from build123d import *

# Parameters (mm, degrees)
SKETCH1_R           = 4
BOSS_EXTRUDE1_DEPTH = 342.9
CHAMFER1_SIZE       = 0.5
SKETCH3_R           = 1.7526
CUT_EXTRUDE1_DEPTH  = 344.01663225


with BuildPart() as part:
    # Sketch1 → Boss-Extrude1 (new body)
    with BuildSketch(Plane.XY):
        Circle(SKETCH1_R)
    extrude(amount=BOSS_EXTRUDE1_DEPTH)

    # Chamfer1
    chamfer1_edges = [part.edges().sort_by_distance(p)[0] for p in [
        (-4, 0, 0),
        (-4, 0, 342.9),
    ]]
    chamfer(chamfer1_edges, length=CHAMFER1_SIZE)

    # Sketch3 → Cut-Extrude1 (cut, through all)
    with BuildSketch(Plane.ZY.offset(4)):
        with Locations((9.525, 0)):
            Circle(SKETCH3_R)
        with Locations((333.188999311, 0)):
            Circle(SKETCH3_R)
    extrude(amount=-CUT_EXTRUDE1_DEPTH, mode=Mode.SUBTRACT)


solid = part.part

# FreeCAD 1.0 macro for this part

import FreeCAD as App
import Part
import Sketcher

V = App.Vector


def edges_at(feature, points):
    """Names of the edges that pass closest to the given points."""
    edges = feature.Shape.Edges
    near = lambda p: min(range(len(edges)), key=lambda i: edges[i].distToShape(Part.Vertex(*p))[0])
    return sorted({f"Edge{near(p) + 1}" for p in points})

doc = App.newDocument("Part")
body = doc.addObject("PartDesign::Body", "Body")

sketch1 = body.newObject("Sketcher::SketchObject", "Sketch")
sketch1.AttachmentSupport = (doc.getObject("XY_Plane"), [""])
sketch1.MapMode = "FlatFace"
sketch1.addGeometry(Part.Circle(V(0, 0, 0), V(0, 0, 1), 4), False)
sketch1.addConstraint(Sketcher.Constraint("Coincident", 0, 3, -1, 1))
sketch1.addConstraint(Sketcher.Constraint("Diameter", 0, 8.0))
pad1 = body.newObject("PartDesign::Pad", "Pad")
pad1.Profile = sketch1
pad1.Length = 342.9
doc.recompute()

chamfer = body.newObject("PartDesign::Chamfer", "Chamfer")
chamfer.Base = (pad1, edges_at(pad1, [(-4, 0, 0), (-4, 0, 342.9)]))
chamfer.Size = 0.5

sketch2 = body.newObject("Sketcher::SketchObject", "Sketch001")
sketch2.AttachmentSupport = (doc.getObject("YZ_Plane"), [""])
sketch2.MapMode = "FlatFace"
sketch2.AttachmentOffset = App.Placement(V(0, 0, -4), App.Rotation())
sketch2.addGeometry(Part.Circle(V(0, 9.5, 0), V(0, 0, 1), 1.8), False)
sketch2.addGeometry(Part.Circle(V(0, 333.2, 0), V(0, 0, 1), 1.8), False)
sketch2.addConstraint(Sketcher.Constraint("Equal", 0, 1))
sketch2.addConstraint(Sketcher.Constraint("PointOnObject", 0, 3, -2))
sketch2.addConstraint(Sketcher.Constraint("PointOnObject", 1, 3, -2))
sketch2.addConstraint(Sketcher.Constraint("Diameter", 0, 3.5052))
sketch2.addConstraint(Sketcher.Constraint("DistanceY", -1, 1, 0, 3, 9.525))
sketch2.addConstraint(Sketcher.Constraint("DistanceY", -1, 1, 1, 3, 333.188999))
pocket1 = body.newObject("PartDesign::Pocket", "Pocket")
pocket1.Profile = sketch2
pocket1.Type = "ThroughAll"
pocket1.Reversed = True

doc.recompute()
